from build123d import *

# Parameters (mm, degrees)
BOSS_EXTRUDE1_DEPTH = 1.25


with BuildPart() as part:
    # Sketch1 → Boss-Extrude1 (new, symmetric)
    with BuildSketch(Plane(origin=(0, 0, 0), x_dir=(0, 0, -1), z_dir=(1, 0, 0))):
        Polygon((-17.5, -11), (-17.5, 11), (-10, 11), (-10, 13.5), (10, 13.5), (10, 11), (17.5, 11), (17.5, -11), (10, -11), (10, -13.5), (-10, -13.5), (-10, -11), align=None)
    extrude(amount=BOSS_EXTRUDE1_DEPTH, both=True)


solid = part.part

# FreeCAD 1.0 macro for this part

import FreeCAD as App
import Part
import Sketcher

V = App.Vector

doc = App.newDocument("Part")
body = doc.addObject("PartDesign::Body", "Body")

# Sketch on YZ plane
sketch1 = doc.addObject("Sketcher::SketchObject", "Sketch")
body.addObject(sketch1)
sketch1.AttachmentSupport = (doc.YZ_Plane, [""])
sketch1.MapMode = "FlatFace"
sketch1.addGeometry(Part.LineSegment(V(11, 17.5, 0), V(-11, 17.5, 0)), False)
sketch1.addGeometry(Part.LineSegment(V(-11, 17.5, 0), V(-11, 10, 0)), False)
sketch1.addGeometry(Part.LineSegment(V(-11, 10, 0), V(-13.5, 10, 0)), False)
sketch1.addGeometry(Part.LineSegment(V(-13.5, 10, 0), V(-13.5, -10, 0)), False)
sketch1.addGeometry(Part.LineSegment(V(-13.5, -10, 0), V(-11, -10, 0)), False)
sketch1.addGeometry(Part.LineSegment(V(-11, -10, 0), V(-11, -17.5, 0)), False)
sketch1.addGeometry(Part.LineSegment(V(-11, -17.5, 0), V(11, -17.5, 0)), False)
sketch1.addGeometry(Part.LineSegment(V(11, -17.5, 0), V(11, -10, 0)), False)
sketch1.addGeometry(Part.LineSegment(V(11, -10, 0), V(13.5, -10, 0)), False)
sketch1.addGeometry(Part.LineSegment(V(13.5, -10, 0), V(13.5, 10, 0)), False)
sketch1.addGeometry(Part.LineSegment(V(13.5, 10, 0), V(11, 10, 0)), False)
sketch1.addGeometry(Part.LineSegment(V(11, 10, 0), V(11, 17.5, 0)), False)
sketch1.addConstraint(Sketcher.Constraint("Coincident", 0, 2, 1, 1))
sketch1.addConstraint(Sketcher.Constraint("Coincident", 1, 2, 2, 1))
sketch1.addConstraint(Sketcher.Constraint("Coincident", 2, 2, 3, 1))
sketch1.addConstraint(Sketcher.Constraint("Coincident", 3, 2, 4, 1))
sketch1.addConstraint(Sketcher.Constraint("Coincident", 4, 2, 5, 1))
sketch1.addConstraint(Sketcher.Constraint("Coincident", 5, 2, 6, 1))
sketch1.addConstraint(Sketcher.Constraint("Coincident", 6, 2, 7, 1))
sketch1.addConstraint(Sketcher.Constraint("Coincident", 7, 2, 8, 1))
sketch1.addConstraint(Sketcher.Constraint("Coincident", 8, 2, 9, 1))
sketch1.addConstraint(Sketcher.Constraint("Coincident", 9, 2, 10, 1))
sketch1.addConstraint(Sketcher.Constraint("Coincident", 10, 2, 11, 1))
sketch1.addConstraint(Sketcher.Constraint("Coincident", 11, 2, 0, 1))
sketch1.addConstraint(Sketcher.Constraint("Horizontal", 0))
sketch1.addConstraint(Sketcher.Constraint("Vertical", 1))
sketch1.addConstraint(Sketcher.Constraint("Horizontal", 2))
sketch1.addConstraint(Sketcher.Constraint("Vertical", 3))
sketch1.addConstraint(Sketcher.Constraint("Horizontal", 4))
sketch1.addConstraint(Sketcher.Constraint("Vertical", 5))
sketch1.addConstraint(Sketcher.Constraint("Horizontal", 6))
sketch1.addConstraint(Sketcher.Constraint("Vertical", 7))
sketch1.addConstraint(Sketcher.Constraint("Horizontal", 8))
sketch1.addConstraint(Sketcher.Constraint("Vertical", 9))
sketch1.addConstraint(Sketcher.Constraint("Horizontal", 10))
sketch1.addConstraint(Sketcher.Constraint("Vertical", 11))
sketch1.addConstraint(Sketcher.Constraint("Symmetric", 0, 2, 6, 2, -1, 1))
sketch1.addConstraint(Sketcher.Constraint("Symmetric", 2, 2, 8, 2, -1, 1))
sketch1.addConstraint(Sketcher.Constraint("Symmetric", 4, 2, 10, 2, -1, 1))
sketch1.addConstraint(Sketcher.Constraint("Symmetric", 4, 2, 7, 2, -2))
sketch1.addConstraint(Sketcher.Constraint("DistanceX", 0, 2, 0, 1, 22.0))
sketch1.addConstraint(Sketcher.Constraint("DistanceY", 3, 2, 3, 1, 20.0))
sketch1.addConstraint(Sketcher.Constraint("DistanceX", 2, 2, 2, 1, 2.5))
sketch1.addConstraint(Sketcher.Constraint("DistanceY", 1, 2, 1, 1, 7.5))
pad1 = doc.addObject("PartDesign::Pad", "Pad")
body.addObject(pad1)
pad1.Profile = sketch1
pad1.Length = 2.5
pad1.Midplane = True

doc.recompute()
